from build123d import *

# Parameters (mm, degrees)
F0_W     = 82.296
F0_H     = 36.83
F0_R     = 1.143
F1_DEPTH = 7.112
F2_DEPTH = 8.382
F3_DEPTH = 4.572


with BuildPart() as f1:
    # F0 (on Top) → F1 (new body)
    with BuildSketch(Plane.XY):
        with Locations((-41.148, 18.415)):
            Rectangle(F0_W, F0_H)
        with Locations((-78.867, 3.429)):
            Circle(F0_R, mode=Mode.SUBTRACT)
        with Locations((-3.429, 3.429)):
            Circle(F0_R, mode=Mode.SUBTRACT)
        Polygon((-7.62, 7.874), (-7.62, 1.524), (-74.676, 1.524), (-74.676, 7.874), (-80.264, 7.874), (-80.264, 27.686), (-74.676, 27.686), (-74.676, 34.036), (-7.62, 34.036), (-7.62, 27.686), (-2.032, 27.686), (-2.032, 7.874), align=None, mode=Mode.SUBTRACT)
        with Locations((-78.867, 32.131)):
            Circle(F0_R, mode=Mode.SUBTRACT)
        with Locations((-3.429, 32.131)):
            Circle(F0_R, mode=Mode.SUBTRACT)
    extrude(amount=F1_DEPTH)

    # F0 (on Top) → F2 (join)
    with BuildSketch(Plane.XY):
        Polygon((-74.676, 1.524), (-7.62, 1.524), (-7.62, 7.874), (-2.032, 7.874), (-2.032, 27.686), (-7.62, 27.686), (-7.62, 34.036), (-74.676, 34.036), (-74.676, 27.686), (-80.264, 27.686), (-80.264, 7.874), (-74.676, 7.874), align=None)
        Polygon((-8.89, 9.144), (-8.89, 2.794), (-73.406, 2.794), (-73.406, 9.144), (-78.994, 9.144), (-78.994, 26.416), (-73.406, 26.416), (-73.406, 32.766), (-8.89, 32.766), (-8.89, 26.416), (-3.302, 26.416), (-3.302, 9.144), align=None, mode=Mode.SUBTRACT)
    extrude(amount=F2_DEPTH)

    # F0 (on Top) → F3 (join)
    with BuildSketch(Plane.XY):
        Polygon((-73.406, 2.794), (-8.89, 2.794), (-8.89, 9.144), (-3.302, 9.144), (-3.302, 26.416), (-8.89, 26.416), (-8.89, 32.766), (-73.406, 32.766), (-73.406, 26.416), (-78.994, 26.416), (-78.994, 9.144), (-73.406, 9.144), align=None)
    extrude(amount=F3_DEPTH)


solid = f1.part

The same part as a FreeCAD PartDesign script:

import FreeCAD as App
import Part
import Sketcher
from FreeCAD import Vector
Q = App.Units.Quantity


def add_polygon(sketch, points):
    """Adds a closed chain of lines whose ends are joined by coincident constraints."""
    first, n = sketch.GeometryCount, len(points)
    for a, b in zip(points, points[1:] + points[:1]):
        sketch.addGeometry(Part.LineSegment(App.Vector(*a, 0), App.Vector(*b, 0)), False)
    for i in range(n):
        sketch.addConstraint(Sketcher.Constraint("Coincident", first + i, 2, first + (i + 1) % n, 1))

doc = App.newDocument("Part")
params = doc.addObject("Spreadsheet::Sheet", "Params")
for row, (alias, value) in enumerate([
    ("sketch1_diameter", "0.09 in"),
    ("sketch1_width", "3.24 in"),
    ("sketch1_width2", "0.22 in"),
    ("sketch1_width3", "2.64 in"),
    ("sketch1_height", "1.45 in"),
    ("pad1_length", "0.28 in"),
    ("sketch2_width", "2.64 in"),
    ("sketch2_width2", "0.22 in"),
    ("sketch2_width3", "2.54 in"),
    ("sketch2_height", "0.25 in"),
    ("sketch2_height2", "0.78 in"),
    ("pad2_length", "0.33 in"),
    ("sketch3_width", "2.54 in"),
    ("sketch3_width2", "0.22 in"),
    ("sketch3_height", "0.25 in"),
    ("sketch3_height2", "0.68 in"),
    ("pad3_length", "0.18 in"),
], start=1):
    params.set(f"A{row}", alias)
    params.set(f"B{row}", "=" + value)
    params.setAlias(f"B{row}", alias)

body = doc.addObject("PartDesign::Body", "Body")

# Sketch on XY plane
sketch1 = doc.addObject("Sketcher::SketchObject", "Sketch")
body.addObject(sketch1)
sketch1.AttachmentSupport = (doc.XY_Plane, [""])
sketch1.MapMode = "FlatFace"
add_polygon(sketch1, [(-82.3, 36.8), (-82.3, 0), (0, 0), (0, 36.8)])  # lines 0-3
sketch1.addGeometry(Part.Circle(Vector(-78.9, 3.4, 0), Vector(0, 0, 1), 1.1), False)  # 4
sketch1.addGeometry(Part.Circle(Vector(-3.4, 3.4, 0), Vector(0, 0, 1), 1.1), False)  # 5
sketch1.addGeometry(Part.Circle(Vector(-78.9, 32.1, 0), Vector(0, 0, 1), 1.1), False)  # 6
add_polygon(sketch1, [(-2, 7.9), (-7.6, 7.9), (-7.6, 1.5), (-74.7, 1.5), (-74.7, 7.9), (-80.3, 7.9), (-80.3, 27.7), (-74.7, 27.7), (-74.7, 34), (-7.6, 34), (-7.6, 27.7), (-2, 27.7)])  # lines 7-18
sketch1.addGeometry(Part.Circle(Vector(-3.4, 32.1, 0), Vector(0, 0, 1), 1.1), False)  # 19
sketch1.addConstraint([
    Sketcher.Constraint("Vertical", 0),
    Sketcher.Constraint("Horizontal", 1),
    Sketcher.Constraint("Vertical", 2),
    Sketcher.Constraint("Horizontal", 3),
    Sketcher.Constraint("Horizontal", 7),
    Sketcher.Constraint("Vertical", 8),
    Sketcher.Constraint("Horizontal", 9),
    Sketcher.Constraint("Vertical", 10),
    Sketcher.Constraint("Horizontal", 11),
    Sketcher.Constraint("Vertical", 12),
    Sketcher.Constraint("Horizontal", 13),
    Sketcher.Constraint("Vertical", 14),
    Sketcher.Constraint("Horizontal", 15),
    Sketcher.Constraint("Vertical", 16),
    Sketcher.Constraint("Horizontal", 17),
    Sketcher.Constraint("Vertical", 18),
    Sketcher.Constraint("Coincident", 1, 2, -1, 1),
    Sketcher.Constraint("Equal", 4, 5),
    Sketcher.Constraint("Equal", 5, 6),
    Sketcher.Constraint("Equal", 6, 19),
    Sketcher.Constraint("Horizontal", 4, 3, 5, 3),
    Sketcher.Constraint("Horizontal", 6, 3, 19, 3),
    Sketcher.Constraint("Horizontal", 7, 2, 10, 2),
    Sketcher.Constraint("Horizontal", 13, 2, 16, 2),
    Sketcher.Constraint("Vertical", 4, 3, 6, 3),
    Sketcher.Constraint("Vertical", 5, 3, 19, 3),
    Sketcher.Constraint("Vertical", 10, 2, 13, 2),
    Sketcher.Constraint("Vertical", 8, 2, 15, 2),
    Sketcher.Constraint("Equal", 7, 11),
    Sketcher.Constraint("Equal", 10, 14),
    Sketcher.Constraint("Diameter", 4, Q("0.09 in")),
    Sketcher.Constraint("DistanceX", 1, 1, 1, 2, Q("3.24 in")),
    Sketcher.Constraint("DistanceX", 7, 2, 7, 1, Q("0.22 in")),
    Sketcher.Constraint("DistanceX", 9, 2, 9, 1, Q("2.64 in")),
    Sketcher.Constraint("DistanceY", 0, 2, 0, 1, Q("1.45 in")),
    Sketcher.Constraint("DistanceY", 8, 2, 8, 1, Q("0.25 in")),
    Sketcher.Constraint("DistanceY", 12, 1, 12, 2, Q("0.78 in")),
    Sketcher.Constraint("DistanceX", 7, 2, -1, 1, Q("0.3 in")),
    Sketcher.Constraint("DistanceY", -1, 1, 7, 2, Q("0.31 in")),
    Sketcher.Constraint("DistanceX", 4, 3, 5, 3, Q("2.97 in")),
    Sketcher.Constraint("DistanceY", 4, 3, 6, 3, Q("1.13 in")),
    Sketcher.Constraint("DistanceX", 4, 3, -1, 1, Q("3.105 in")),
    Sketcher.Constraint("DistanceY", -1, 1, 4, 3, Q("0.135 in")),
])
sketch1.setExpression("Constraints[46]", "Params.sketch1_diameter")
sketch1.setExpression("Constraints[47]", "Params.sketch1_width")
sketch1.setExpression("Constraints[48]", "Params.sketch1_width2")
sketch1.setExpression("Constraints[49]", "Params.sketch1_width3")
sketch1.setExpression("Constraints[50]", "Params.sketch1_height")
pad1 = doc.addObject("PartDesign::Pad", "Pad")
body.addObject(pad1)
pad1.Profile = sketch1
pad1.setExpression("Length", "Params.pad1_length")

# Sketch on XY plane
sketch2 = doc.addObject("Sketcher::SketchObject", "Sketch001")
body.addObject(sketch2)
sketch2.AttachmentSupport = (doc.XY_Plane, [""])
sketch2.MapMode = "FlatFace"
add_polygon(sketch2, [(-75, 2), (-8, 2), (-8, 8), (-2, 8), (-2, 28), (-8, 28), (-8, 34), (-75, 34), (-75, 28), (-80, 28), (-80, 8), (-75, 8)])  # lines 0-11
add_polygon(sketch2, [(-3, 9), (-9, 9), (-9, 3), (-73, 3), (-73, 9), (-79, 9), (-79, 26), (-73, 26), (-73, 33), (-9, 33), (-9, 26), (-3, 26)])  # lines 12-23
sketch2.addConstraint([
    Sketcher.Constraint("Horizontal", 0),
    Sketcher.Constraint("Vertical", 1),
    Sketcher.Constraint("Horizontal", 2),
    Sketcher.Constraint("Vertical", 3),
    Sketcher.Constraint("Horizontal", 4),
    Sketcher.Constraint("Vertical", 5),
    Sketcher.Constraint("Horizontal", 6),
    Sketcher.Constraint("Vertical", 7),
    Sketcher.Constraint("Horizontal", 8),
    Sketcher.Constraint("Vertical", 9),
    Sketcher.Constraint("Horizontal", 10),
    Sketcher.Constraint("Vertical", 11),
    Sketcher.Constraint("Horizontal", 12),
    Sketcher.Constraint("Vertical", 13),
    Sketcher.Constraint("Horizontal", 14),
    Sketcher.Constraint("Vertical", 15),
    Sketcher.Constraint("Horizontal", 16),
    Sketcher.Constraint("Vertical", 17),
    Sketcher.Constraint("Horizontal", 18),
    Sketcher.Constraint("Vertical", 19),
    Sketcher.Constraint("Horizontal", 20),
    Sketcher.Constraint("Vertical", 21),
    Sketcher.Constraint("Horizontal", 22),
    Sketcher.Constraint("Vertical", 23),
    Sketcher.Constraint("Horizontal", 4, 2, 7, 2),
    Sketcher.Constraint("Horizontal", 2, 2, 9, 2),
    Sketcher.Constraint("Horizontal", 12, 2, 15, 2),
    Sketcher.Constraint("Horizontal", 18, 2, 21, 2),
    Sketcher.Constraint("Vertical", 1, 2, 4, 2),
    Sketcher.Constraint("Vertical", 7, 2, 10, 2),
    Sketcher.Constraint("Vertical", 15, 2, 18, 2),
    Sketcher.Constraint("Vertical", 13, 2, 20, 2),
    Sketcher.Constraint("Equal", 4, 8),
    Sketcher.Constraint("Equal", 10, 12),
    Sketcher.Constraint("Equal", 12, 16),
    Sketcher.Constraint("Equal", 1, 5),
    Sketcher.Constraint("Equal", 11, 13),
    Sketcher.Constraint("Equal", 15, 19),
    Sketcher.Constraint("DistanceX", 0, 1, 0, 2, Q("2.64 in")),
    Sketcher.Constraint("DistanceX", 2, 1, 2, 2, Q("0.22 in")),
    Sketcher.Constraint("DistanceX", 14, 2, 14, 1, Q("2.54 in")),
    Sketcher.Constraint("DistanceY", 1, 1, 1, 2, Q("0.25 in")),
    Sketcher.Constraint("DistanceY", 3, 1, 3, 2, Q("0.78 in")),
    Sketcher.Constraint("DistanceY", 17, 1, 17, 2, Q("0.68 in")),
    Sketcher.Constraint("DistanceX", 0, 2, -1, 1, Q("0.3 in")),
    Sketcher.Constraint("DistanceY", 0, 2, 12, 2, Q("0.3 in")),
    Sketcher.Constraint("DistanceY", -1, 1, 0, 2, Q("0.06 in")),
    Sketcher.Constraint("DistanceX", 12, 2, -1, 1, Q("0.35 in")),
])
sketch2.setExpression("Constraints[62]", "Params.sketch2_width")
sketch2.setExpression("Constraints[63]", "Params.sketch2_width2")
sketch2.setExpression("Constraints[64]", "Params.sketch2_width3")
sketch2.setExpression("Constraints[65]", "Params.sketch2_height")
sketch2.setExpression("Constraints[66]", "Params.sketch2_height2")
pad2 = doc.addObject("PartDesign::Pad", "Pad001")
body.addObject(pad2)
pad2.Profile = sketch2
pad2.setExpression("Length", "Params.pad2_length")

# Sketch on XY plane
sketch3 = doc.addObject("Sketcher::SketchObject", "Sketch002")
body.addObject(sketch3)
sketch3.AttachmentSupport = (doc.XY_Plane, [""])
sketch3.MapMode = "FlatFace"
add_polygon(sketch3, [(-73, 3), (-9, 3), (-9, 9), (-3, 9), (-3, 26), (-9, 26), (-9, 33), (-73, 33), (-73, 26), (-79, 26), (-79, 9), (-73, 9)])  # lines 0-11
sketch3.addConstraint([
    Sketcher.Constraint("Horizontal", 0),
    Sketcher.Constraint("Vertical", 1),
    Sketcher.Constraint("Horizontal", 2),
    Sketcher.Constraint("Vertical", 3),
    Sketcher.Constraint("Horizontal", 4),
    Sketcher.Constraint("Vertical", 5),
    Sketcher.Constraint("Horizontal", 6),
    Sketcher.Constraint("Vertical", 7),
    Sketcher.Constraint("Horizontal", 8),
    Sketcher.Constraint("Vertical", 9),
    Sketcher.Constraint("Horizontal", 10),
    Sketcher.Constraint("Vertical", 11),
    Sketcher.Constraint("Horizontal", 4, 2, 7, 2),
    Sketcher.Constraint("Horizontal", 2, 2, 9, 2),
    Sketcher.Constraint("Vertical", 1, 2, 4, 2),
    Sketcher.Constraint("Vertical", 7, 2, 10, 2),
    Sketcher.Constraint("Equal", 4, 8),
    Sketcher.Constraint("Equal", 1, 5),
    Sketcher.Constraint("DistanceX", 0, 1, 0, 2, Q("2.54 in")),
    Sketcher.Constraint("DistanceX", 2, 1, 2, 2, Q("0.22 in")),
    Sketcher.Constraint("DistanceY", 1, 1, 1, 2, Q("0.25 in")),
    Sketcher.Constraint("DistanceY", 3, 1, 3, 2, Q("0.68 in")),
    Sketcher.Constraint("DistanceX", 0, 2, -1, 1, Q("0.35 in")),
    Sketcher.Constraint("DistanceY", -1, 1, 0, 2, Q("0.11 in")),
])
sketch3.setExpression("Constraints[30]", "Params.sketch3_width")
sketch3.setExpression("Constraints[31]", "Params.sketch3_width2")
sketch3.setExpression("Constraints[32]", "Params.sketch3_height")
sketch3.setExpression("Constraints[33]", "Params.sketch3_height2")
pad3 = doc.addObject("PartDesign::Pad", "Pad002")
body.addObject(pad3)
pad3.Profile = sketch3
pad3.setExpression("Length", "Params.pad3_length")

doc.recompute()
